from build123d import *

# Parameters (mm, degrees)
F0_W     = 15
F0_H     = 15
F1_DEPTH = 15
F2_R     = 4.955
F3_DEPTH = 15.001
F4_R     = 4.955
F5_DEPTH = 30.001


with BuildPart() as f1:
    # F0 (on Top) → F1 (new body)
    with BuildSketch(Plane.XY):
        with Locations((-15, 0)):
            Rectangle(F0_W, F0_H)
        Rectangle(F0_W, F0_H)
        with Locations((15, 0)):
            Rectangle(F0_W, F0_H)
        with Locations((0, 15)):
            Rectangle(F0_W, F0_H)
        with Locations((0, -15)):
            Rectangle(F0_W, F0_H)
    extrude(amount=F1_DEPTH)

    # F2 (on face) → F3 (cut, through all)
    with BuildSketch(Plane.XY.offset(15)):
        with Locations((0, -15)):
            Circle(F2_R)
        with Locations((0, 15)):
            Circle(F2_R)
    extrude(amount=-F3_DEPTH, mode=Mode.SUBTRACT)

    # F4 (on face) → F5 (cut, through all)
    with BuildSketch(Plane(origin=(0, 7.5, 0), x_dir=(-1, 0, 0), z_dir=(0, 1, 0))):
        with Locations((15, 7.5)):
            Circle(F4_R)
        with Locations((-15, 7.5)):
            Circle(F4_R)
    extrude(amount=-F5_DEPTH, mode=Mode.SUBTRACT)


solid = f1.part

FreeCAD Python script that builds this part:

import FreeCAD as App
import Part
import Sketcher
Q = App.Units.Quantity

doc = App.newDocument("Part")
body = doc.addObject("PartDesign::Body", "Body")

# Sketch on XY plane
sketch1 = body.newObject("Sketcher::SketchObject", "Sketch")
sketch1.AttachmentSupport = (doc.getObject("XY_Plane"), [""])
sketch1.MapMode = "FlatFace"
sketch1.addGeometry(Part.LineSegment(App.Vector(-22, 8, 0), App.Vector(-22, -8, 0)), False)
sketch1.addGeometry(Part.LineSegment(App.Vector(-22, -8, 0), App.Vector(-8, -8, 0)), False)
sketch1.addGeometry(Part.LineSegment(App.Vector(-8, -8, 0), App.Vector(-8, -22, 0)), False)
sketch1.addGeometry(Part.LineSegment(App.Vector(-8, -22, 0), App.Vector(8, -22, 0)), False)
sketch1.addGeometry(Part.LineSegment(App.Vector(8, -22, 0), App.Vector(8, -8, 0)), False)
sketch1.addGeometry(Part.LineSegment(App.Vector(8, -8, 0), App.Vector(22, -8, 0)), False)
sketch1.addGeometry(Part.LineSegment(App.Vector(22, -8, 0), App.Vector(22, 8, 0)), False)
sketch1.addGeometry(Part.LineSegment(App.Vector(22, 8, 0), App.Vector(8, 8, 0)), False)
sketch1.addGeometry(Part.LineSegment(App.Vector(8, 8, 0), App.Vector(8, 22, 0)), False)
sketch1.addGeometry(Part.LineSegment(App.Vector(8, 22, 0), App.Vector(-8, 22, 0)), False)
sketch1.addGeometry(Part.LineSegment(App.Vector(-8, 22, 0), App.Vector(-8, 8, 0)), False)
sketch1.addGeometry(Part.LineSegment(App.Vector(-8, 8, 0), App.Vector(-22, 8, 0)), False)
sketch1.addConstraint(Sketcher.Constraint("Coincident", 0, 2, 1, 1))
sketch1.addConstraint(Sketcher.Constraint("Coincident", 1, 2, 2, 1))
sketch1.addConstraint(Sketcher.Constraint("Coincident", 2, 2, 3, 1))
sketch1.addConstraint(Sketcher.Constraint("Coincident", 3, 2, 4, 1))
sketch1.addConstraint(Sketcher.Constraint("Coincident", 4, 2, 5, 1))
sketch1.addConstraint(Sketcher.Constraint("Coincident", 5, 2, 6, 1))
sketch1.addConstraint(Sketcher.Constraint("Coincident", 6, 2, 7, 1))
sketch1.addConstraint(Sketcher.Constraint("Coincident", 7, 2, 8, 1))
sketch1.addConstraint(Sketcher.Constraint("Coincident", 8, 2, 9, 1))
sketch1.addConstraint(Sketcher.Constraint("Coincident", 9, 2, 10, 1))
sketch1.addConstraint(Sketcher.Constraint("Coincident", 10, 2, 11, 1))
sketch1.addConstraint(Sketcher.Constraint("Coincident", 11, 2, 0, 1))
sketch1.addConstraint(Sketcher.Constraint("Vertical", 0))
sketch1.addConstraint(Sketcher.Constraint("Horizontal", 1))
sketch1.addConstraint(Sketcher.Constraint("Vertical", 2))
sketch1.addConstraint(Sketcher.Constraint("Horizontal", 3))
sketch1.addConstraint(Sketcher.Constraint("Vertical", 4))
sketch1.addConstraint(Sketcher.Constraint("Horizontal", 5))
sketch1.addConstraint(Sketcher.Constraint("Vertical", 6))
sketch1.addConstraint(Sketcher.Constraint("Horizontal", 7))
sketch1.addConstraint(Sketcher.Constraint("Vertical", 8))
sketch1.addConstraint(Sketcher.Constraint("Horizontal", 9))
sketch1.addConstraint(Sketcher.Constraint("Vertical", 10))
sketch1.addConstraint(Sketcher.Constraint("Horizontal", 11))
sketch1.addConstraint(Sketcher.Constraint("Symmetric", 0, 2, 6, 2, -1, 1))
sketch1.addConstraint(Sketcher.Constraint("Symmetric", 2, 2, 8, 2, -1, 1))
sketch1.addConstraint(Sketcher.Constraint("Symmetric", 4, 2, 10, 2, -1, 1))
sketch1.addConstraint(Sketcher.Constraint("Symmetric", 1, 2, 4, 2, -2))
sketch1.addConstraint(Sketcher.Constraint("Equal", 1, 3))
sketch1.addConstraint(Sketcher.Constraint("Equal", 11, 0))
sketch1.addConstraint(Sketcher.Constraint("Equal", 0, 2))
sketch1.addConstraint(Sketcher.Constraint("DistanceX", 1, 1, 1, 2, Q("15 mm")))
pad1 = body.newObject("PartDesign::Pad", "Pad")
pad1.Profile = sketch1
pad1.Length = 15

# Sketch on XY plane
sketch2 = body.newObject("Sketcher::SketchObject", "Sketch001")
sketch2.AttachmentSupport = (doc.getObject("XY_Plane"), [""])
sketch2.MapMode = "FlatFace"
sketch2.AttachmentOffset = App.Placement(App.Vector(0, 0, 15), App.Rotation())
sketch2.addGeometry(Part.Circle(App.Vector(0, -15, 0), App.Vector(0, 0, 1), 5), False)
sketch2.addGeometry(Part.Circle(App.Vector(0, 15, 0), App.Vector(0, 0, 1), 5), False)
sketch2.addConstraint(Sketcher.Constraint("Equal", 0, 1))
sketch2.addConstraint(Sketcher.Constraint("Symmetric", 0, 3, 1, 3, -1, 1))
sketch2.addConstraint(Sketcher.Constraint("PointOnObject", 0, 3, -2))
sketch2.addConstraint(Sketcher.Constraint("Diameter", 0, Q("9.91 mm")))
sketch2.addConstraint(Sketcher.Constraint("DistanceY", 0, 3, -1, 1, Q("15 mm")))
pocket1 = body.newObject("PartDesign::Pocket", "Pocket")
pocket1.Profile = sketch2
pocket1.Type = "ThroughAll"

# Sketch on XZ plane
sketch3 = body.newObject("Sketcher::SketchObject", "Sketch002")
sketch3.AttachmentSupport = (doc.getObject("XZ_Plane"), [""])
sketch3.MapMode = "FlatFace"
sketch3.AttachmentOffset = App.Placement(App.Vector(0, 0, -7.5), App.Rotation())
sketch3.addGeometry(Part.Circle(App.Vector(-15, 7.5, 0), App.Vector(0, 0, 1), 5), False)
sketch3.addGeometry(Part.Circle(App.Vector(15, 7.5, 0), App.Vector(0, 0, 1), 5), False)
sketch3.addConstraint(Sketcher.Constraint("Equal", 0, 1))
sketch3.addConstraint(Sketcher.Constraint("Symmetric", 0, 3, 1, 3, -2))
sketch3.addConstraint(Sketcher.Constraint("Diameter", 0, Q("9.91 mm")))
sketch3.addConstraint(Sketcher.Constraint("DistanceX", 0, 3, -1, 1, Q("15 mm")))
sketch3.addConstraint(Sketcher.Constraint("DistanceY", -1, 1, 0, 3, Q("7.5 mm")))
pocket2 = body.newObject("PartDesign::Pocket", "Pocket001")
pocket2.Profile = sketch3
pocket2.Type = "ThroughAll"
pocket2.Reversed = True

doc.recompute()
